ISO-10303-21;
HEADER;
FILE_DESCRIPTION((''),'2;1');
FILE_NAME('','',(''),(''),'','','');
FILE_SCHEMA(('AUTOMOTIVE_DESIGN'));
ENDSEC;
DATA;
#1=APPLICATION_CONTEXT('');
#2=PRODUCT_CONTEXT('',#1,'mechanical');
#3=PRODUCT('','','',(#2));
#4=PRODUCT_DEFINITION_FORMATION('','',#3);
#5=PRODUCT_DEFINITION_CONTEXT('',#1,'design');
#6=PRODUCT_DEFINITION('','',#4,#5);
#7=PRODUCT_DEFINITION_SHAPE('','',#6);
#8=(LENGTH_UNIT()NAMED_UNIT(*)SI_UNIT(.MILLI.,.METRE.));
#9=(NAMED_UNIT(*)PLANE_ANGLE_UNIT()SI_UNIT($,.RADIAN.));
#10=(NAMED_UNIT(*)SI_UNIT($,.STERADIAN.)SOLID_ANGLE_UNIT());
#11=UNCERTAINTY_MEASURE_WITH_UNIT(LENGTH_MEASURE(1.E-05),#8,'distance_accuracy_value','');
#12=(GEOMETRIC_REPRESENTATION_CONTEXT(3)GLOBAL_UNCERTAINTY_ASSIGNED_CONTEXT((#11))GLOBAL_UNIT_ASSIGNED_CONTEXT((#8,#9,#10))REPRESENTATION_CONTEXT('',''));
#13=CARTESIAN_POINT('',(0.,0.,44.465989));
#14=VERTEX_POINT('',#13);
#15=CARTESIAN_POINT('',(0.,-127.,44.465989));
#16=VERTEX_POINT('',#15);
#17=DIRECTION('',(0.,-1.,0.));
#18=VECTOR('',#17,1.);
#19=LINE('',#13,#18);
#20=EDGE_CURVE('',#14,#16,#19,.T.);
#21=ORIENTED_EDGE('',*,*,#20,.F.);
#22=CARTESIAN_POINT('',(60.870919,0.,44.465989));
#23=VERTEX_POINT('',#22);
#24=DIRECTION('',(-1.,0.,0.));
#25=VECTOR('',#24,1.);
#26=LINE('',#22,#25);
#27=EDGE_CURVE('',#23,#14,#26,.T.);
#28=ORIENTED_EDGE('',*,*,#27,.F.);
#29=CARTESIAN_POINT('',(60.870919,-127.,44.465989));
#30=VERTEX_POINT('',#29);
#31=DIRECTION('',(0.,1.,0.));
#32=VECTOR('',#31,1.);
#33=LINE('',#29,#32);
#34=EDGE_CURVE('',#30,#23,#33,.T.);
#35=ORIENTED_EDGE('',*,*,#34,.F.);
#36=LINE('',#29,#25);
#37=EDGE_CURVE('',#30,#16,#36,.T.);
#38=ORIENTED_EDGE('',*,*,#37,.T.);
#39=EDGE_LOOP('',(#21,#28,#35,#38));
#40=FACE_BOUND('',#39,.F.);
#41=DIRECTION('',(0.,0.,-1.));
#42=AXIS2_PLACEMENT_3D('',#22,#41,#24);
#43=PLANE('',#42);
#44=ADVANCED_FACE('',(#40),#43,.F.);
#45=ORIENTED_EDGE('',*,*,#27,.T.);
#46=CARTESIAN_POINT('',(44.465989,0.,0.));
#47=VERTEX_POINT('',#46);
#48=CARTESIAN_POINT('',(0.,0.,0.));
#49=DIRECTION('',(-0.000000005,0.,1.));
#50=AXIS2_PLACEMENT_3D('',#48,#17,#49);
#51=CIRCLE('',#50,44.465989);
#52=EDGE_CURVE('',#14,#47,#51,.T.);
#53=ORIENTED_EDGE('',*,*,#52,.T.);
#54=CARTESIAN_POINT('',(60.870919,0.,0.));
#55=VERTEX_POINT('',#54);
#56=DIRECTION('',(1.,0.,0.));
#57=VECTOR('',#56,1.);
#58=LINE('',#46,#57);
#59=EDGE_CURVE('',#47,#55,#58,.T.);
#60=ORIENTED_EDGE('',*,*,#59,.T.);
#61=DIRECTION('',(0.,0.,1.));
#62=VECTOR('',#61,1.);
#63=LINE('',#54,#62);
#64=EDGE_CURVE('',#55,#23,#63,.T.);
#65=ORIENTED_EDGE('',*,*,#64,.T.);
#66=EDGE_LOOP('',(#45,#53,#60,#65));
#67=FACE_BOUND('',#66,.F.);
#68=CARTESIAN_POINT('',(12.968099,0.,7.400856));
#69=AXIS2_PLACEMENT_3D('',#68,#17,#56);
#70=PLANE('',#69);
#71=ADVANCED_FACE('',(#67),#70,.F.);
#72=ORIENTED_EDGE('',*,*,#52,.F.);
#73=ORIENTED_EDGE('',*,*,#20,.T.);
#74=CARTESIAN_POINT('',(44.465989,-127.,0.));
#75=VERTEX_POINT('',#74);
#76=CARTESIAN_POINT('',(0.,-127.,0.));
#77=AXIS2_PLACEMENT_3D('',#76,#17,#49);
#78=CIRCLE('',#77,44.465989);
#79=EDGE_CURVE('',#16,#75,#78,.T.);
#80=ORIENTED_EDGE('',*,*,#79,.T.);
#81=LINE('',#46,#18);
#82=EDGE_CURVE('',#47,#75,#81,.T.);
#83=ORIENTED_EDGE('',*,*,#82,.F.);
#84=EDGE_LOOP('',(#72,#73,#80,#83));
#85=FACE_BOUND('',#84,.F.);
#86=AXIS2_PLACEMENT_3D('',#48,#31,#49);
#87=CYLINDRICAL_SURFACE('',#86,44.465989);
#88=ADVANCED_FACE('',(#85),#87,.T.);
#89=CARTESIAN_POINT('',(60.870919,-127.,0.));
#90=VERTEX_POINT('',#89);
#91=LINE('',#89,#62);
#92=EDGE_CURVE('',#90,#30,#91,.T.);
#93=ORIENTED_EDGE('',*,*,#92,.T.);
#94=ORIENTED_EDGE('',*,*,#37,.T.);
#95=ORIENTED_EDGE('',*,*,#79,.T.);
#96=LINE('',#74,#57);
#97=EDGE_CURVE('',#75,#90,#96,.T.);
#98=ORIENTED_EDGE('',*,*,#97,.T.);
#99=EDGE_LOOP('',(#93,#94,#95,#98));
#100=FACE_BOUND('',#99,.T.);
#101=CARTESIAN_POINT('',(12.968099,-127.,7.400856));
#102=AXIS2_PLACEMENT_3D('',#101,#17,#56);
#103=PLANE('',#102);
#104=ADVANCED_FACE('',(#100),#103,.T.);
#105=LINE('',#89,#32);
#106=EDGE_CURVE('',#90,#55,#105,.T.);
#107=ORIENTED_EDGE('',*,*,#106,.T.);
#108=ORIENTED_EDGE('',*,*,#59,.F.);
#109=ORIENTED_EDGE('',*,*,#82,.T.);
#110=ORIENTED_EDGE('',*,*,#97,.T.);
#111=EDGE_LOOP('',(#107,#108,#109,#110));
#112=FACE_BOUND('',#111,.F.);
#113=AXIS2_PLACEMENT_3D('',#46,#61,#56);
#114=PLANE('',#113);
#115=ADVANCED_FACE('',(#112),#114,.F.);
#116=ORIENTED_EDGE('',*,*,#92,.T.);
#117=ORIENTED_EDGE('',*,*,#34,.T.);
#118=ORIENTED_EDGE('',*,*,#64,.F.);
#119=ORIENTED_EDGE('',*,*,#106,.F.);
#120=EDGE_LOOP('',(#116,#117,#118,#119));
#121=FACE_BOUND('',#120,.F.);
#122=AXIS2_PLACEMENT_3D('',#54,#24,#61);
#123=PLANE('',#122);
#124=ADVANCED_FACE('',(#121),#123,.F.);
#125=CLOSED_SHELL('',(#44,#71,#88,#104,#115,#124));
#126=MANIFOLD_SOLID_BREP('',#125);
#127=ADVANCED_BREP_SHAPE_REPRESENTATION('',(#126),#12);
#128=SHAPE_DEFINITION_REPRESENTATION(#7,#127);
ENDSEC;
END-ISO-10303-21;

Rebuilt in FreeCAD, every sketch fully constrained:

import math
import FreeCAD as App
import Part
import Sketcher
Q = App.Units.Quantity

doc = App.newDocument("Part")
body = doc.addObject("PartDesign::Body", "Body")

sketch1 = body.newObject("Sketcher::SketchObject", "Sketch")
sketch1.AttachmentSupport = (doc.getObject("XZ_Plane"), [""])
sketch1.MapMode = "FlatFace"
sketch1.addGeometry([
    Part.LineSegment(App.Vector(60.870919, 44.465989, 0), App.Vector(0, 44.465989, 0)),
    Part.ArcOfCircle(Part.Circle(App.Vector(0, 0, 0), App.Vector(0, 0, 1), 44.465989), math.radians(90), math.radians(360)),
    Part.LineSegment(App.Vector(44.465989, 0, 0), App.Vector(60.870919, 0, 0)),
    Part.LineSegment(App.Vector(60.870919, 0, 0), App.Vector(60.870919, 44.465989, 0)),
], False)
sketch1.addConstraint([
    Sketcher.Constraint("Tangent", 0, 2, 1, 1),
    Sketcher.Constraint("Coincident", 1, 2, 2, 1),
    Sketcher.Constraint("Coincident", 2, 2, 3, 1),
    Sketcher.Constraint("Coincident", 3, 2, 0, 1),
    Sketcher.Constraint("Horizontal", 0),
    Sketcher.Constraint("Horizontal", 2),
    Sketcher.Constraint("Vertical", 3),
    Sketcher.Constraint("Coincident", 1, 3, -1, 1),
    Sketcher.Constraint("PointOnObject", 1, 2, -1),
    Sketcher.Constraint("Radius", 1, Q("44.465989 mm")),
    Sketcher.Constraint("DistanceX", 0, 2, 0, 1, Q("60.870919 mm")),
])
pad1 = body.newObject("PartDesign::Pad", "Pad")
pad1.Profile = sketch1
pad1.Length = Q("1 in")

sketch2 = body.newObject("Sketcher::SketchObject", "Sketch001")
sketch2.AttachmentSupport = (doc.getObject("XZ_Plane"), [""])
sketch2.MapMode = "FlatFace"
sketch2.addGeometry([
    Part.LineSegment(App.Vector(60.870919, 44.465989, 0), App.Vector(0, 44.465989, 0)),
    Part.ArcOfCircle(Part.Circle(App.Vector(0, 0, 0), App.Vector(0, 0, 1), 44.465989), math.radians(90), math.radians(360)),
    Part.LineSegment(App.Vector(44.465989, 0, 0), App.Vector(60.870919, 0, 0)),
    Part.LineSegment(App.Vector(60.870919, 0, 0), App.Vector(60.870919, 44.465989, 0)),
], False)
sketch2.addConstraint([
    Sketcher.Constraint("Tangent", 0, 2, 1, 1),
    Sketcher.Constraint("Coincident", 1, 2, 2, 1),
    Sketcher.Constraint("Coincident", 2, 2, 3, 1),
    Sketcher.Constraint("Coincident", 3, 2, 0, 1),
    Sketcher.Constraint("Horizontal", 0),
    Sketcher.Constraint("Horizontal", 2),
    Sketcher.Constraint("Vertical", 3),
    Sketcher.Constraint("Coincident", 1, 3, -1, 1),
    Sketcher.Constraint("PointOnObject", 1, 2, -1),
    Sketcher.Constraint("Radius", 1, Q("44.465989 mm")),
    Sketcher.Constraint("DistanceX", 0, 2, 0, 1, Q("60.870919 mm")),
])
pad2 = body.newObject("PartDesign::Pad", "Pad001")
pad2.Profile = sketch2
pad2.Length = Q("5 in")

doc.recompute()
